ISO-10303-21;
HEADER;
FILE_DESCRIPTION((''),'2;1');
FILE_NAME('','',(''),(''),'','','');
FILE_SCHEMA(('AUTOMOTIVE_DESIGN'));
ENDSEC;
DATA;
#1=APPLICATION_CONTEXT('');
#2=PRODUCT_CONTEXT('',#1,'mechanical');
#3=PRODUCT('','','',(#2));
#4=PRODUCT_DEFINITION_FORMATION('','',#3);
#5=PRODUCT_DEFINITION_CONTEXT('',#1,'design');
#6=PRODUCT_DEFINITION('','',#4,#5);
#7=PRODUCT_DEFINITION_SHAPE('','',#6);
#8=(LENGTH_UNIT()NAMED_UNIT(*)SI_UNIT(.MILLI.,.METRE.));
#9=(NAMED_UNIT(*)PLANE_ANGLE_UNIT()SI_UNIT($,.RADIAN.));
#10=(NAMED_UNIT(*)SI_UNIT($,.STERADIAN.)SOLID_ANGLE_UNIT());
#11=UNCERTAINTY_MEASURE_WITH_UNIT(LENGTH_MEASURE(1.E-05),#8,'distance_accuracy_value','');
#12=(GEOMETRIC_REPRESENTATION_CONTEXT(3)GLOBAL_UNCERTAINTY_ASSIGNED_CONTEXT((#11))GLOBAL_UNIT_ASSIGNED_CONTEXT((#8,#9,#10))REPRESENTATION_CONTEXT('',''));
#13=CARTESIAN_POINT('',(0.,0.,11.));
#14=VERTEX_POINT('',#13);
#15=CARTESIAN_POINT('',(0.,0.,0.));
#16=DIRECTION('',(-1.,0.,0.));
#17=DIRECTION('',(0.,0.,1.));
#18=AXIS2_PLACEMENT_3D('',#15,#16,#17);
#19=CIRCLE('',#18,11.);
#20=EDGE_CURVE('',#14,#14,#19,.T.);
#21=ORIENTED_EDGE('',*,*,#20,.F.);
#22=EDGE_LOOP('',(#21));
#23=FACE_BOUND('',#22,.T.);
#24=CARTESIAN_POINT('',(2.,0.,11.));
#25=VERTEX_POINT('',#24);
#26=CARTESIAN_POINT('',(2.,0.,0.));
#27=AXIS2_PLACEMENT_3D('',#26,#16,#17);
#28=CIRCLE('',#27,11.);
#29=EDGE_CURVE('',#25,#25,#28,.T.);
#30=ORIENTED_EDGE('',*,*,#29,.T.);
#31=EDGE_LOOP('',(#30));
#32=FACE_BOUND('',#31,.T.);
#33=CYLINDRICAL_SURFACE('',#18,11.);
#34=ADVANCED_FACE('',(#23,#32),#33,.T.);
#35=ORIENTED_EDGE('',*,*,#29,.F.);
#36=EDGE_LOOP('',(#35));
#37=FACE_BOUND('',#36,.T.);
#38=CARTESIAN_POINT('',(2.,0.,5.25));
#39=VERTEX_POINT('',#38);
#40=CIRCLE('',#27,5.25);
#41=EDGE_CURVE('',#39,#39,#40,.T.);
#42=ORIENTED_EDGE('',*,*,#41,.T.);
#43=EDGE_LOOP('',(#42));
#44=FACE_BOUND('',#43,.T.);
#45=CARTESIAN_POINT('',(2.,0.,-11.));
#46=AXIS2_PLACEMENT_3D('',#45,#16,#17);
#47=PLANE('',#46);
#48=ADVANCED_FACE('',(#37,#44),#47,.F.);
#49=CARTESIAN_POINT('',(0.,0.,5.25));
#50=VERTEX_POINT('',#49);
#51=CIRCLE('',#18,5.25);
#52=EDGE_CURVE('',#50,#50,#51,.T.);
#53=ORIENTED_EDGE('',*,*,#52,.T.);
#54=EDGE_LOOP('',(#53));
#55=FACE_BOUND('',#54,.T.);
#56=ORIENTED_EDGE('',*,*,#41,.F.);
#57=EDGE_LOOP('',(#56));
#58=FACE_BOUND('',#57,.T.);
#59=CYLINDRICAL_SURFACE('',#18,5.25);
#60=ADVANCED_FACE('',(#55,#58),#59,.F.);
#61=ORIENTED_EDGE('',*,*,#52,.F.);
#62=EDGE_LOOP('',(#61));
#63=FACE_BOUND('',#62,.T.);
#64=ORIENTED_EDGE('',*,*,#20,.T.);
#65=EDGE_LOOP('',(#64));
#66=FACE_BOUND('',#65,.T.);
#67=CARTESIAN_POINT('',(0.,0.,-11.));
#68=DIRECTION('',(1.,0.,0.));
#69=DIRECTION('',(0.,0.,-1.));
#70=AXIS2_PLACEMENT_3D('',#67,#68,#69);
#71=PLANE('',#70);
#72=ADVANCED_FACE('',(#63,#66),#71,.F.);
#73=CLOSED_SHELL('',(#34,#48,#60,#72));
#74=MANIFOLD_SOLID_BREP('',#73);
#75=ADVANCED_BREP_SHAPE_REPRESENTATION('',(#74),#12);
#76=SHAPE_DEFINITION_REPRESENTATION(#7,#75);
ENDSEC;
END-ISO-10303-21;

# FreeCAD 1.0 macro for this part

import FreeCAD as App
import Part
import Sketcher

V = App.Vector


def add_polygon(sketch, points):
    """Adds a closed chain of lines whose ends are joined by coincident constraints."""
    first, n = sketch.GeometryCount, len(points)
    for a, b in zip(points, points[1:] + points[:1]):
        sketch.addGeometry(Part.LineSegment(App.Vector(*a, 0), App.Vector(*b, 0)), False)
    for i in range(n):
        sketch.addConstraint(Sketcher.Constraint("Coincident", first + i, 2, first + (i + 1) % n, 1))

doc = App.newDocument("Part")
params = doc.addObject("Spreadsheet::Sheet", "Params")
for row, (alias, value) in enumerate([
    ("sketch1_width", "2 mm"),
    ("sketch1_height", "5.75 mm"),
    ("revolution_angle", "360 deg"),
], start=1):
    params.set(f"A{row}", alias)
    params.set(f"B{row}", "=" + value)
    params.setAlias(f"B{row}", alias)

body = doc.addObject("PartDesign::Body", "Body")

sketch1 = body.newObject("Sketcher::SketchObject", "Sketch")
sketch1.AttachmentSupport = (doc.getObject("XZ_Plane"), [""])
sketch1.MapMode = "FlatFace"
add_polygon(sketch1, [(0, -11), (0, -5.2), (2, -5.2), (2, -11)])
sketch1.addConstraint([
    Sketcher.Constraint("Vertical", 0),
    Sketcher.Constraint("Horizontal", 1),
    Sketcher.Constraint("Vertical", 2),
    Sketcher.Constraint("Horizontal", 3),
    Sketcher.Constraint("PointOnObject", 0, 2, -2),
    Sketcher.Constraint("DistanceX", 1, 1, 1, 2, 2.0),
    Sketcher.Constraint("DistanceY", 2, 2, -1, 1, 11.0),
    Sketcher.Constraint("DistanceY", 0, 1, 0, 2, 5.75),
])
sketch1.setExpression("Constraints[9]", "Params.sketch1_width")
sketch1.setExpression("Constraints[11]", "Params.sketch1_height")
revolution = body.newObject("PartDesign::Revolution", "Revolution")
revolution.Profile = sketch1
revolution.ReferenceAxis = (sketch1, ["H_Axis"])
revolution.setExpression("Angle", "Params.revolution_angle")

doc.recompute()
